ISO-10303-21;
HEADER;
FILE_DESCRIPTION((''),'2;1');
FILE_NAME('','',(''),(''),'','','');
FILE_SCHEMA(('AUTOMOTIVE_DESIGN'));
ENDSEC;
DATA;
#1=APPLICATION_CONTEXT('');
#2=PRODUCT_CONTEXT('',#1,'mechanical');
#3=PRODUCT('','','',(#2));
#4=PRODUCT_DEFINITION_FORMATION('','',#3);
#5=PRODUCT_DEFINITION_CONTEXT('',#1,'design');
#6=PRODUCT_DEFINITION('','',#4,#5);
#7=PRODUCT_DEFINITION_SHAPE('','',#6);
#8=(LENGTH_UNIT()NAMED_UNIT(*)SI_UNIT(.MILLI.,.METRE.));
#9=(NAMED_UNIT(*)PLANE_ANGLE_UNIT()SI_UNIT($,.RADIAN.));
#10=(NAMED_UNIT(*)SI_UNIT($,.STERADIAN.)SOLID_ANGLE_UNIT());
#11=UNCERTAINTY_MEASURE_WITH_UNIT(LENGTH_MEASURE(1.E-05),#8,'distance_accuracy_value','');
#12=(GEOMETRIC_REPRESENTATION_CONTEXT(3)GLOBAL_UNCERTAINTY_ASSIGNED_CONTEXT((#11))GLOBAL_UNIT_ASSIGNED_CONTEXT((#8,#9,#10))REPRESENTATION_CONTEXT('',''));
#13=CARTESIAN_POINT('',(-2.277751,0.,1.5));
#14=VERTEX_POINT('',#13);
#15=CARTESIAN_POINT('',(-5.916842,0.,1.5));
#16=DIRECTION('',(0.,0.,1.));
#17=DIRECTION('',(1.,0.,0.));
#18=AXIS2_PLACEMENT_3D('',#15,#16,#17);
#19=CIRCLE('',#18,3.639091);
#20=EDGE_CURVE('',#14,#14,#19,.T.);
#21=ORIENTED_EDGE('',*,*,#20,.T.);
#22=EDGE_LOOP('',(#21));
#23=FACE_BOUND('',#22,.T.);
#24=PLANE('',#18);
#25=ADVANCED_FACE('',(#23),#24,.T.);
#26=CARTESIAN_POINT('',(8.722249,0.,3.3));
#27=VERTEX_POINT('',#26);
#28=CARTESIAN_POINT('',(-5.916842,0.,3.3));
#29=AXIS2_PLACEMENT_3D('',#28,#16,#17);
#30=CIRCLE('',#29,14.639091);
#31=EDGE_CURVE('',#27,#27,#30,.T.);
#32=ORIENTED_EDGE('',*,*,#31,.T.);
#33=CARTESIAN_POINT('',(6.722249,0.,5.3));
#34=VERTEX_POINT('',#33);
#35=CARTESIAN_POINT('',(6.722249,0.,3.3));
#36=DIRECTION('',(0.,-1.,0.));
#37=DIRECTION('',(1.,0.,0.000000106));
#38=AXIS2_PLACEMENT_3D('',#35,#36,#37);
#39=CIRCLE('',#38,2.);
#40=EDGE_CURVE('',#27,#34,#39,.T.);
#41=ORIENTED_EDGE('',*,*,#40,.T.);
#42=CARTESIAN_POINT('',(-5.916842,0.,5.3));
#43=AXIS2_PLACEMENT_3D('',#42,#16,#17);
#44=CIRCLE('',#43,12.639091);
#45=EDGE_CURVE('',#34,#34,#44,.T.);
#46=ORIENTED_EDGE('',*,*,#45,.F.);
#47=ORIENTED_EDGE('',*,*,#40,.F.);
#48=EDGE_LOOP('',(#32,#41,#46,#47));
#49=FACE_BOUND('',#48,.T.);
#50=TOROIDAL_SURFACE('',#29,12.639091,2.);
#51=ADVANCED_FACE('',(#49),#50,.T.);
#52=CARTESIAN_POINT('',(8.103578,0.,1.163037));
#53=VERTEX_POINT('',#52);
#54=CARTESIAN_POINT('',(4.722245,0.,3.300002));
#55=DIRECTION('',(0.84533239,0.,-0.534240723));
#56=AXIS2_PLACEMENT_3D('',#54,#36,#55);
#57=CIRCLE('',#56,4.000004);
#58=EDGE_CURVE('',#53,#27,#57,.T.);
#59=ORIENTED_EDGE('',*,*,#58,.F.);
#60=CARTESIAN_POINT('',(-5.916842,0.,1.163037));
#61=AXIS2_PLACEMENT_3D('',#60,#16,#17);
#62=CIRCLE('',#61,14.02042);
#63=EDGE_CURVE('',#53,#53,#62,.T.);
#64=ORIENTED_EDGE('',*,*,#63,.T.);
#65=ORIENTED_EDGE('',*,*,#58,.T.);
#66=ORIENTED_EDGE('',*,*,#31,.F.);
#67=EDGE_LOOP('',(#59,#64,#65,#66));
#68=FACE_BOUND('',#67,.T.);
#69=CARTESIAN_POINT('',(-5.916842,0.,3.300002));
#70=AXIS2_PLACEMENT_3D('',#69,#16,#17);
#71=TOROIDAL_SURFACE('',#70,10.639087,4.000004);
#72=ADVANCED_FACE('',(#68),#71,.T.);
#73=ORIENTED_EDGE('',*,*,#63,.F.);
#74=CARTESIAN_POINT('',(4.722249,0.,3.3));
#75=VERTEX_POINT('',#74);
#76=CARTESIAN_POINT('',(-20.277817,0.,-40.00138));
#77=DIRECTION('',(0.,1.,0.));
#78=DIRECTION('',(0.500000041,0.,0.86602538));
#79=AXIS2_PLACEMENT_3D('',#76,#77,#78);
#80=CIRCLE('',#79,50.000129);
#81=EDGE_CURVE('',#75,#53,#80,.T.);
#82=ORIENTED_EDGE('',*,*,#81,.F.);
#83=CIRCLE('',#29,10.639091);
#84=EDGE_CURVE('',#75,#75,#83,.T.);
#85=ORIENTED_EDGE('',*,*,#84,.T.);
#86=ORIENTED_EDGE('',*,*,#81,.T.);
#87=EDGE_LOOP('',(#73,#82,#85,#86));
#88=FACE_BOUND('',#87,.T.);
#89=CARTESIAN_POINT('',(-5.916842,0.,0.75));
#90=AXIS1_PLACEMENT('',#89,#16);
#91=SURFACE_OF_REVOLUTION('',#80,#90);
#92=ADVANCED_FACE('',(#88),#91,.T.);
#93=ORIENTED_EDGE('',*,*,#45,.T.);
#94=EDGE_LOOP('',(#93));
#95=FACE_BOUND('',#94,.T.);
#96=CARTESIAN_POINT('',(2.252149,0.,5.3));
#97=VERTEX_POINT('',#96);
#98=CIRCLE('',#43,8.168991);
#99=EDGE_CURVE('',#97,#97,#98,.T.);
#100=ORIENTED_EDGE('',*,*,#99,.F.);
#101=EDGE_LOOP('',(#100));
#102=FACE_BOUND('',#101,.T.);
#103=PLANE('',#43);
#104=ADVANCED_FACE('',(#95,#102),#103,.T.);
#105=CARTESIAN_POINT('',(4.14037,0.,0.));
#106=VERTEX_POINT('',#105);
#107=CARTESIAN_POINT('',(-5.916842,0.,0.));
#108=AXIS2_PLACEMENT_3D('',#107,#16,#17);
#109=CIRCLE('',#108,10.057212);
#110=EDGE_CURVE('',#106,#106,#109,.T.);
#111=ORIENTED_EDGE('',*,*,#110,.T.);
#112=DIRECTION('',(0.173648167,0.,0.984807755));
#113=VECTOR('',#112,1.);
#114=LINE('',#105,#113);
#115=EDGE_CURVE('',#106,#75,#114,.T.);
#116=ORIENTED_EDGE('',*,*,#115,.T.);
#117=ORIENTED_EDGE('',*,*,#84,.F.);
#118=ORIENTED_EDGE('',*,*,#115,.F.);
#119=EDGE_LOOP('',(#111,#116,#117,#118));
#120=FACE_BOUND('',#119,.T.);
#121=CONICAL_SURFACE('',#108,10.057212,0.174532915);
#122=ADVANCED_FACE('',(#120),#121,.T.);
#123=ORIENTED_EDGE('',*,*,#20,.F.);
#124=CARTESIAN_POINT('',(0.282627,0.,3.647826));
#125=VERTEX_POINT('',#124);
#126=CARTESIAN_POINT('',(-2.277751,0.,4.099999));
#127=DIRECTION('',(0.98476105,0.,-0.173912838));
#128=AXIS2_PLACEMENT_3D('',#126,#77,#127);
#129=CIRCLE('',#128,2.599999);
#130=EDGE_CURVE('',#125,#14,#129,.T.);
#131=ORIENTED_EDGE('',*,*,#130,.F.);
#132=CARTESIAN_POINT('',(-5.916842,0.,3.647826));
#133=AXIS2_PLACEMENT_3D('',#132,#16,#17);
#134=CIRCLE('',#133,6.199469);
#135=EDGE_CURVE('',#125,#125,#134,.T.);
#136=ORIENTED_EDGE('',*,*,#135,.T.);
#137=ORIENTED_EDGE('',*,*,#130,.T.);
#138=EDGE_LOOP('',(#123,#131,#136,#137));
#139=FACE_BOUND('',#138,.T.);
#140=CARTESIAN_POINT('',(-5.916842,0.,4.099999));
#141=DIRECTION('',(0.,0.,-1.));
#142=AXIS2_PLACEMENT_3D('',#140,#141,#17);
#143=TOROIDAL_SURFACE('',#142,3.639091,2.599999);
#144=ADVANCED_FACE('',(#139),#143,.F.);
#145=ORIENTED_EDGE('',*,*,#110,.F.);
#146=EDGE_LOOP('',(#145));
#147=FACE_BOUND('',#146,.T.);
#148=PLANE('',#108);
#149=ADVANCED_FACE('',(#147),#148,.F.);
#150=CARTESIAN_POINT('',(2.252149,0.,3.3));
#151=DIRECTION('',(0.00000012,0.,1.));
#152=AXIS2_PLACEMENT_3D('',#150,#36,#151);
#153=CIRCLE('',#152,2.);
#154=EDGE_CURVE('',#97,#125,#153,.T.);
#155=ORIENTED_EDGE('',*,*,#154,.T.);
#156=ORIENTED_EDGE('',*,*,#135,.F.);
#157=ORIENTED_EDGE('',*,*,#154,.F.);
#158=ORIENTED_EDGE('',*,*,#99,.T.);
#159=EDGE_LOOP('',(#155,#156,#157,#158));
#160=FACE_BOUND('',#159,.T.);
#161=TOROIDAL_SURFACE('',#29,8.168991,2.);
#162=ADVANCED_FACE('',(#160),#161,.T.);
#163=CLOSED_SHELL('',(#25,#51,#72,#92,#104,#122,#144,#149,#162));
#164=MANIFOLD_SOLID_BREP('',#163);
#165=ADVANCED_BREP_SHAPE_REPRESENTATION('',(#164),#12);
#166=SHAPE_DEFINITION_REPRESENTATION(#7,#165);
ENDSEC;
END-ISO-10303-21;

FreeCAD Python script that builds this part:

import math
import FreeCAD as App
import Part
import Sketcher
Q = App.Units.Quantity

doc = App.newDocument("Part")
params = doc.addObject("Spreadsheet::Sheet", "Params")
for row, (alias, value) in enumerate([
    ("sketch1_radius", "2 mm"),
    ("sketch1_radius2", "2.599999 mm"),
    ("sketch1_height", "1.5 mm"),
    ("revolution_angle", "360 deg"),
], start=1):
    params.set(f"A{row}", alias)
    params.set(f"B{row}", "=" + value)
    params.setAlias(f"B{row}", alias)

body = doc.addObject("PartDesign::Body", "Body")

# Sketch on XZ plane
sketch1 = body.newObject("Sketcher::SketchObject", "Sketch")
sketch1.AttachmentSupport = (doc.getObject("XZ_Plane"), [""])
sketch1.MapMode = "FlatFace"
sketch1.addGeometry([
    Part.LineSegment(App.Vector(-5.9, 0, 0), App.Vector(4.1, 0, 0)),  # 0
    Part.LineSegment(App.Vector(4.1, 0, 0), App.Vector(4.7, 3.3, 0)),  # 1
    Part.ArcOfCircle(Part.Circle(App.Vector(-20.3, -40, 0), App.Vector(0, 0, 1), 50), math.radians(55.42), math.radians(60)),  # 2
    Part.ArcOfCircle(Part.Circle(App.Vector(4.7, 3.3, 0), App.Vector(0, 0, 1), 4), math.radians(-32), math.radians(0)),  # 3
    Part.ArcOfCircle(Part.Circle(App.Vector(6.7, 3.3, 0), App.Vector(0, 0, 1), 2), math.radians(0), math.radians(90)),  # 4
    Part.LineSegment(App.Vector(6.7, 5.3, 0), App.Vector(2.3, 5.3, 0)),  # 5
    Part.ArcOfCircle(Part.Circle(App.Vector(2.3, 3.3, 0), App.Vector(0, 0, 1), 2), math.radians(90), math.radians(170)),  # 6
    Part.ArcOfCircle(Part.Circle(App.Vector(-2.3, 4.1, 0), App.Vector(0, 0, 1), 2.6), math.radians(-90), math.radians(-10)),  # 7
    Part.LineSegment(App.Vector(-2.3, 1.5, 0), App.Vector(-5.9, 1.5, 0)),  # 8
    Part.LineSegment(App.Vector(-5.9, 1.5, 0), App.Vector(-5.9, 0, 0)),  # 9
], False)
sketch1.addGeometry(Part.LineSegment(App.Vector(-5.9, -40, 0), App.Vector(-5.9, 5.3, 0)), True)  # axis
sketch1.addConstraint([
    Sketcher.Constraint("Coincident", 0, 2, 1, 1),
    Sketcher.Constraint("Coincident", 1, 2, 2, 2),
    Sketcher.Constraint("Coincident", 2, 1, 3, 1),
    Sketcher.Constraint("Tangent", 3, 2, 4, 1),
    Sketcher.Constraint("Tangent", 4, 2, 5, 1),
    Sketcher.Constraint("Tangent", 5, 2, 6, 1),
    Sketcher.Constraint("Tangent", 6, 2, 7, 2),
    Sketcher.Constraint("Tangent", 7, 1, 8, 1),
    Sketcher.Constraint("Coincident", 8, 2, 9, 1),
    Sketcher.Constraint("Coincident", 9, 2, 0, 1),
    Sketcher.Constraint("Horizontal", 0),
    Sketcher.Constraint("Horizontal", 5),
    Sketcher.Constraint("Horizontal", 8),
    Sketcher.Constraint("Vertical", 9),
    Sketcher.Constraint("Vertical", 10),
    Sketcher.Constraint("Coincident", 1, 2, 3, 3),
    Sketcher.Constraint("Equal", 4, 6),
    Sketcher.Constraint("PointOnObject", 0, 2, -1),
    Sketcher.Constraint("Horizontal", 6, 3, 1, 2),
    Sketcher.Constraint("Horizontal", 2, 3, 10, 1),
    Sketcher.Constraint("Horizontal", 5, 2, 10, 2),
    Sketcher.Constraint("Vertical", 9, 2, 10, 1),
    Sketcher.Constraint("Radius", 4, Q("2 mm")),
    Sketcher.Constraint("Radius", 7, Q("2.599999 mm")),
    Sketcher.Constraint("Angle", 1, Q("80.000001 deg")),
    Sketcher.Constraint("DistanceY", 9, 2, 9, 1, Q("1.5 mm")),
    Sketcher.Constraint("DistanceX", 7, 3, 4, 3, Q("9 mm")),
    Sketcher.Constraint("DistanceX", 1, 2, 4, 3, Q("2 mm")),
    Sketcher.Constraint("DistanceY", -1, 1, 3, 3, Q("3.300002 mm")),
    Sketcher.Constraint("Radius", 2, Q("50.000129 mm")),
    Sketcher.Constraint("DistanceX", 8, 2, 8, 1, Q("3.639091 mm")),
    Sketcher.Constraint("DistanceY", 10, 1, 10, 2, Q("45.30138 mm")),
    Sketcher.Constraint("DistanceX", -1, 1, 4, 3, Q("6.722249 mm")),
])
sketch1.setExpression("Constraints[22]", "Params.sketch1_radius")
sketch1.setExpression("Constraints[23]", "Params.sketch1_radius2")
sketch1.setExpression("Constraints[25]", "Params.sketch1_height")
revolution = body.newObject("PartDesign::Revolution", "Revolution")
revolution.Profile = sketch1
revolution.ReferenceAxis = (sketch1, ["Axis0"])
revolution.setExpression("Angle", "Params.revolution_angle")

doc.recompute()
